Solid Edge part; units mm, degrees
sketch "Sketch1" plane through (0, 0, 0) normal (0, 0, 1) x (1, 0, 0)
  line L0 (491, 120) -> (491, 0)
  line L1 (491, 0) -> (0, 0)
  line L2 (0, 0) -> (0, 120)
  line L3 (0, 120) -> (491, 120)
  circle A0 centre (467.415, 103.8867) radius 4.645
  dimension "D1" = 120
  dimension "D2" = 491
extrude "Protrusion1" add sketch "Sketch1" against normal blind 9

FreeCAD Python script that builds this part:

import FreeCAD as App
import Part
import Sketcher
Q = App.Units.Quantity

doc = App.newDocument("Part")
body = doc.addObject("PartDesign::Body", "Body")

sketch1 = body.newObject("Sketcher::SketchObject", "Sketch")
sketch1.AttachmentSupport = (doc.getObject("XY_Plane"), [""])
sketch1.MapMode = "FlatFace"
sketch1.addGeometry(Part.LineSegment(App.Vector(491, 0, 0), App.Vector(491, 120, 0)), False)
sketch1.addGeometry(Part.LineSegment(App.Vector(491, 120, 0), App.Vector(0, 120, 0)), False)
sketch1.addGeometry(Part.LineSegment(App.Vector(0, 120, 0), App.Vector(0, 0, 0)), False)
sketch1.addGeometry(Part.LineSegment(App.Vector(0, 0, 0), App.Vector(491, 0, 0)), False)
sketch1.addGeometry(Part.Circle(App.Vector(467.4, 103.9, 0), App.Vector(0, 0, 1), 4.6), False)
sketch1.addConstraint(Sketcher.Constraint("Coincident", 0, 2, 1, 1))
sketch1.addConstraint(Sketcher.Constraint("Coincident", 1, 2, 2, 1))
sketch1.addConstraint(Sketcher.Constraint("Coincident", 2, 2, 3, 1))
sketch1.addConstraint(Sketcher.Constraint("Coincident", 3, 2, 0, 1))
sketch1.addConstraint(Sketcher.Constraint("Vertical", 0))
sketch1.addConstraint(Sketcher.Constraint("Horizontal", 1))
sketch1.addConstraint(Sketcher.Constraint("Vertical", 2))
sketch1.addConstraint(Sketcher.Constraint("Horizontal", 3))
sketch1.addConstraint(Sketcher.Constraint("Coincident", 2, 2, -1, 1))
sketch1.addConstraint(Sketcher.Constraint("Diameter", 4, Q("9.29 mm")))
sketch1.addConstraint(Sketcher.Constraint("DistanceX", 1, 2, 1, 1, Q("491 mm")))
sketch1.addConstraint(Sketcher.Constraint("DistanceY", 0, 1, 0, 2, Q("120 mm")))
sketch1.addConstraint(Sketcher.Constraint("DistanceX", -1, 1, 4, 3, Q("467.415 mm")))
sketch1.addConstraint(Sketcher.Constraint("DistanceY", -1, 1, 4, 3, Q("103.8867 mm")))
pad1 = body.newObject("PartDesign::Pad", "Pad")
pad1.Profile = sketch1
pad1.Length = 9
pad1.Reversed = True

doc.recompute()
